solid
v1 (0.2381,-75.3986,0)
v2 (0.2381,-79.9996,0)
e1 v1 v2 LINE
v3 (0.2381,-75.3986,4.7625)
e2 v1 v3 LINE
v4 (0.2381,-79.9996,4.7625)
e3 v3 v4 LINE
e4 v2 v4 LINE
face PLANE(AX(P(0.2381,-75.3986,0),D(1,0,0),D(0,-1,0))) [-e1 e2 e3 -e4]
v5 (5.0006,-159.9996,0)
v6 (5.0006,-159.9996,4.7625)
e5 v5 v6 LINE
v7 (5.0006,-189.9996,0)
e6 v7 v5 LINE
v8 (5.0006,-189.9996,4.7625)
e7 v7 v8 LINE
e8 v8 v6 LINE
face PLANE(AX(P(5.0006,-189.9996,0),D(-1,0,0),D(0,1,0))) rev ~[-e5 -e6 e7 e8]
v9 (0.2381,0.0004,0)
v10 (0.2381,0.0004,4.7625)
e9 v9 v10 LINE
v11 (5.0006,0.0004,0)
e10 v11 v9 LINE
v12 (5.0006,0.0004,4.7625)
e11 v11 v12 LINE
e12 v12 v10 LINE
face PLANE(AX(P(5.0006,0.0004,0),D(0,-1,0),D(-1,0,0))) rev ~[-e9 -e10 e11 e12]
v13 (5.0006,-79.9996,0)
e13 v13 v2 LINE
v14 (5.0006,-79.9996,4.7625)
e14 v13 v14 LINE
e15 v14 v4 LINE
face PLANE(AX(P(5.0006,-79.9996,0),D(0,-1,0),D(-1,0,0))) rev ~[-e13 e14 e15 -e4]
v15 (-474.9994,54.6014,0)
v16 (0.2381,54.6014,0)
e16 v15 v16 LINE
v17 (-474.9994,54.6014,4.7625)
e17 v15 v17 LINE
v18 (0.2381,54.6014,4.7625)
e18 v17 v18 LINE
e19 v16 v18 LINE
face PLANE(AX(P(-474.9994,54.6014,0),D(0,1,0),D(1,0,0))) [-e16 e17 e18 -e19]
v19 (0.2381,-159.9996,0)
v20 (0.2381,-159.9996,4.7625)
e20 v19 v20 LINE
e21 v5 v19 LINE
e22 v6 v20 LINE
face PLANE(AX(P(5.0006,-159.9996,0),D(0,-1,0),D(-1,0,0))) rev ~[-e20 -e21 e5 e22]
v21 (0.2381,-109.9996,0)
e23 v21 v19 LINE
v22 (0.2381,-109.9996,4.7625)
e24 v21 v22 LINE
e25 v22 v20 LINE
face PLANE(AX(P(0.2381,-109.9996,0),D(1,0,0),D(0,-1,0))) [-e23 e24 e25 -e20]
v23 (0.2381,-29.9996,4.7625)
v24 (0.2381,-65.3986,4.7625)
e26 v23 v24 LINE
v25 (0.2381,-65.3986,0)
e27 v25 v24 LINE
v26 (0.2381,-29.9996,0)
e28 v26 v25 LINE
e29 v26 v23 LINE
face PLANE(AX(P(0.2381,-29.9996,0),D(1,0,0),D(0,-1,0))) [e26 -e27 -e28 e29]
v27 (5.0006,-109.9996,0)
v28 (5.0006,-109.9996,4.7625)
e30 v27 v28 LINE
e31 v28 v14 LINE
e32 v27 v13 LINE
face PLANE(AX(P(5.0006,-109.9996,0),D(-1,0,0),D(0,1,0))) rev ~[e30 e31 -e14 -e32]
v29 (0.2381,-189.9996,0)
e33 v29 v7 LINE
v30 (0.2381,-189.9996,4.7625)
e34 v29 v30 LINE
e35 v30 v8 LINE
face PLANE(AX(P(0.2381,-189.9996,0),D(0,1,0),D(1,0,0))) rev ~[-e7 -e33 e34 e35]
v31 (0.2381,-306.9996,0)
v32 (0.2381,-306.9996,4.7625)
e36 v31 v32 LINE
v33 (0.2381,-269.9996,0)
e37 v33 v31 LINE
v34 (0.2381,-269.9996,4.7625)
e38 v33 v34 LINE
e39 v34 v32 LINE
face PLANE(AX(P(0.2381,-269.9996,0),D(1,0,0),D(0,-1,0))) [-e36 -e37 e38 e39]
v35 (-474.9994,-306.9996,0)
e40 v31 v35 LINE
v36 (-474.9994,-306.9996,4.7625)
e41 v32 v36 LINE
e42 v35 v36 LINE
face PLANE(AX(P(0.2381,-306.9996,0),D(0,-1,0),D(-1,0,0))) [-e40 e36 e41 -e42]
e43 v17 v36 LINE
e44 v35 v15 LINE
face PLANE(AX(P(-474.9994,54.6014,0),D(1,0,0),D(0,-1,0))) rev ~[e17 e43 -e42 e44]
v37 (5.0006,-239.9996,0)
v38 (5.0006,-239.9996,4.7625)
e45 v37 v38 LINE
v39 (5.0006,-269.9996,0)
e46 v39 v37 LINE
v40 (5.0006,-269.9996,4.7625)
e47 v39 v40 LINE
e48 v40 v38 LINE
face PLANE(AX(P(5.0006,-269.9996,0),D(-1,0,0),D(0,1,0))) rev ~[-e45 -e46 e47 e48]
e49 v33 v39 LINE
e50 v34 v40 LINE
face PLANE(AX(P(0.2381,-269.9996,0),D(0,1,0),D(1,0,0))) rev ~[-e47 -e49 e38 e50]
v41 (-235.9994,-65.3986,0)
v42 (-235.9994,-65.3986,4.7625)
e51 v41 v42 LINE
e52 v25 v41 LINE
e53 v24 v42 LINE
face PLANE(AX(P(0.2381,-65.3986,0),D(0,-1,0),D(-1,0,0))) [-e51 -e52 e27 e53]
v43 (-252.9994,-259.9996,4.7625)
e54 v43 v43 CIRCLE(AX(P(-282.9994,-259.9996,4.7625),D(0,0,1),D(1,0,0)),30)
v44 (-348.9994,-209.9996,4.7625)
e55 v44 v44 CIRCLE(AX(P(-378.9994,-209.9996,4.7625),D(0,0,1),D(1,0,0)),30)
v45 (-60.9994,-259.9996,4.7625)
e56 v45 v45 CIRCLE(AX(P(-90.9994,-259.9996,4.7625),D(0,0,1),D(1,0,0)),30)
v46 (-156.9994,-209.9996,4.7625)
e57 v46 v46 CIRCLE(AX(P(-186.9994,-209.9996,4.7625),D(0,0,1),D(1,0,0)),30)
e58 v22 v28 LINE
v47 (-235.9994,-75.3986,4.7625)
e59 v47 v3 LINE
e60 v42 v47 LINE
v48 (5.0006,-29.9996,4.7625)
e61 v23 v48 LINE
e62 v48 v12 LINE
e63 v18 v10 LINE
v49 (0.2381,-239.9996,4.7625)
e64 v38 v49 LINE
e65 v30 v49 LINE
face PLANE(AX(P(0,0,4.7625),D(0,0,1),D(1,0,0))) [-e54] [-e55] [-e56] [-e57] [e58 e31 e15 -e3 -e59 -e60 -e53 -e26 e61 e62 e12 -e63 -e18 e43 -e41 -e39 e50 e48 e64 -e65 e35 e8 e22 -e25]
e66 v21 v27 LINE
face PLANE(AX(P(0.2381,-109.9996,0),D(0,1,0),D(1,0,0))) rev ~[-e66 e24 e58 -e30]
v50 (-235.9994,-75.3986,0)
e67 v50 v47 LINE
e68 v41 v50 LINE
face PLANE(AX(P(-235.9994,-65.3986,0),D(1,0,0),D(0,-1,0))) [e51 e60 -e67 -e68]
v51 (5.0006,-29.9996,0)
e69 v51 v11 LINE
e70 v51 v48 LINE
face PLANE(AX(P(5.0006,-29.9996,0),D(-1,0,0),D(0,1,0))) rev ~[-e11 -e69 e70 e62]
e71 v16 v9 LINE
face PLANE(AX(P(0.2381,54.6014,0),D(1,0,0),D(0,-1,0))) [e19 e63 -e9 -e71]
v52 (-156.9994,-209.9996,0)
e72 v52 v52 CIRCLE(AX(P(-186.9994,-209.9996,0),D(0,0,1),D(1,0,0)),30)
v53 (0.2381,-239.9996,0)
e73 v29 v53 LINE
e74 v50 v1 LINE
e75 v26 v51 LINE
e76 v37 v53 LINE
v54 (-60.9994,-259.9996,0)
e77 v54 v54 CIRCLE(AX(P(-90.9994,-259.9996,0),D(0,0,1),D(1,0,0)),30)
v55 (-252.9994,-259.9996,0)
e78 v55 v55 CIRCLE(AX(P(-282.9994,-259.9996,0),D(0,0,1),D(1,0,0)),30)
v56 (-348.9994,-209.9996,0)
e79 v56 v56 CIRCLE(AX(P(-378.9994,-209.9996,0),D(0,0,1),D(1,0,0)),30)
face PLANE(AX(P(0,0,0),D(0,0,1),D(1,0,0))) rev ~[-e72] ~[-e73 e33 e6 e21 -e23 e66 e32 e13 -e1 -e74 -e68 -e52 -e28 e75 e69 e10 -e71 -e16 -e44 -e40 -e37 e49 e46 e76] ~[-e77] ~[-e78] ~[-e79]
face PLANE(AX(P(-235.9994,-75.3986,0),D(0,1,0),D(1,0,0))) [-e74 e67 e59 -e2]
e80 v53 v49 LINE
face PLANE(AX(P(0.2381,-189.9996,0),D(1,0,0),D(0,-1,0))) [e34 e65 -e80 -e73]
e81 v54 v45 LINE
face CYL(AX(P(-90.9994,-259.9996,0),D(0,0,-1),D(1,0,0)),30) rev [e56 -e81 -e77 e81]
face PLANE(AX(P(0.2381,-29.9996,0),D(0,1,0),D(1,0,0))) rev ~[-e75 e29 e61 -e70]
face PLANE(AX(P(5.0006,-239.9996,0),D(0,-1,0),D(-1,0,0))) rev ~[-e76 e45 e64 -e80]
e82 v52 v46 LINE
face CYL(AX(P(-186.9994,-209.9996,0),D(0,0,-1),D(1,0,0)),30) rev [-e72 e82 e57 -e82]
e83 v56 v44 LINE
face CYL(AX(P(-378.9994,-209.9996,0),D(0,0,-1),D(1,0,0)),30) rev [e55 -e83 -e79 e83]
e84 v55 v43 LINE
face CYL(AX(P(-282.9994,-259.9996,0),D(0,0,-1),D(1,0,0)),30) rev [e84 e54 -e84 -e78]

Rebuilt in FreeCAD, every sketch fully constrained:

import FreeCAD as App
import Part
import Sketcher
Q = App.Units.Quantity


def add_polygon(sketch, points):
    """Adds a closed chain of lines whose ends are joined by coincident constraints."""
    first, n = sketch.GeometryCount, len(points)
    for a, b in zip(points, points[1:] + points[:1]):
        sketch.addGeometry(Part.LineSegment(App.Vector(*a, 0), App.Vector(*b, 0)), False)
    for i in range(n):
        sketch.addConstraint(Sketcher.Constraint("Coincident", first + i, 2, first + (i + 1) % n, 1))

doc = App.newDocument("Part")
params = doc.addObject("Spreadsheet::Sheet", "Params")
for row, (alias, value) in enumerate([
    ("sketch1_width", "0.1875 in"),
    ("pad1_length", "0.1875 in"),
], start=1):
    params.set(f"A{row}", alias)
    params.set(f"B{row}", "=" + value)
    params.setAlias(f"B{row}", alias)

body = doc.addObject("PartDesign::Body", "Body")

# Sketch on XY plane
sketch1 = body.newObject("Sketcher::SketchObject", "Sketch")
sketch1.AttachmentSupport = (doc.getObject("XY_Plane"), [""])
sketch1.MapMode = "FlatFace"
add_polygon(sketch1, [(0.2381, 0.0004), (0.2381, 54.6014), (-474.9994, 54.6014), (-474.9994, -306.9996), (0.2381, -306.9996), (0.2381, -269.9996), (5.0006, -269.9996), (5.0006, -239.9996), (0.2381, -239.9996), (0.2381, -189.9996), (5.0006, -189.9996), (5.0006, -159.9996), (0.2381, -159.9996), (0.2381, -109.9996), (5.0006, -109.9996), (5.0006, -79.9996), (0.2381, -79.9996), (0.2381, -75.3986), (-235.9994, -75.3986), (-235.9994, -65.3986), (0.2381, -65.3986), (0.2381, -29.9996), (5.0006, -29.9996), (5.0006, 0.0004)])  # lines 0-23
sketch1.addGeometry(Part.Circle(App.Vector(-186.9994, -209.9996, 0), App.Vector(0, 0, 1), 30), False)  # 24
sketch1.addGeometry(Part.Circle(App.Vector(-282.9994, -259.9996, 0), App.Vector(0, 0, 1), 30), False)  # 25
sketch1.addGeometry(Part.Circle(App.Vector(-378.9994, -209.9996, 0), App.Vector(0, 0, 1), 30), False)  # 26
sketch1.addGeometry(Part.Circle(App.Vector(-90.9994, -259.9996, 0), App.Vector(0, 0, 1), 30), False)  # 27
sketch1.addConstraint(Sketcher.Constraint("Vertical", 0))
sketch1.addConstraint(Sketcher.Constraint("Horizontal", 1))
sketch1.addConstraint(Sketcher.Constraint("Vertical", 2))
sketch1.addConstraint(Sketcher.Constraint("Horizontal", 3))
sketch1.addConstraint(Sketcher.Constraint("Vertical", 4))
sketch1.addConstraint(Sketcher.Constraint("Horizontal", 5))
sketch1.addConstraint(Sketcher.Constraint("Vertical", 6))
sketch1.addConstraint(Sketcher.Constraint("Horizontal", 7))
sketch1.addConstraint(Sketcher.Constraint("Vertical", 8))
sketch1.addConstraint(Sketcher.Constraint("Horizontal", 9))
sketch1.addConstraint(Sketcher.Constraint("Vertical", 10))
sketch1.addConstraint(Sketcher.Constraint("Horizontal", 11))
sketch1.addConstraint(Sketcher.Constraint("Vertical", 12))
sketch1.addConstraint(Sketcher.Constraint("Horizontal", 13))
sketch1.addConstraint(Sketcher.Constraint("Vertical", 14))
sketch1.addConstraint(Sketcher.Constraint("Horizontal", 15))
sketch1.addConstraint(Sketcher.Constraint("Vertical", 16))
sketch1.addConstraint(Sketcher.Constraint("Horizontal", 17))
sketch1.addConstraint(Sketcher.Constraint("Vertical", 18))
sketch1.addConstraint(Sketcher.Constraint("Horizontal", 19))
sketch1.addConstraint(Sketcher.Constraint("Vertical", 20))
sketch1.addConstraint(Sketcher.Constraint("Horizontal", 21))
sketch1.addConstraint(Sketcher.Constraint("Vertical", 22))
sketch1.addConstraint(Sketcher.Constraint("Horizontal", 23))
sketch1.addConstraint(Sketcher.Constraint("Equal", 24, 25))
sketch1.addConstraint(Sketcher.Constraint("Equal", 25, 26))
sketch1.addConstraint(Sketcher.Constraint("Equal", 26, 27))
sketch1.addConstraint(Sketcher.Constraint("Horizontal", 24, 3, 26, 3))
sketch1.addConstraint(Sketcher.Constraint("Horizontal", 25, 3, 27, 3))
sketch1.addConstraint(Sketcher.Constraint("Vertical", 0, 2, 3, 2))
sketch1.addConstraint(Sketcher.Constraint("Vertical", 4, 2, 7, 2))
sketch1.addConstraint(Sketcher.Constraint("Vertical", 6, 2, 9, 2))
sketch1.addConstraint(Sketcher.Constraint("Vertical", 8, 2, 11, 2))
sketch1.addConstraint(Sketcher.Constraint("Vertical", 10, 2, 13, 2))
sketch1.addConstraint(Sketcher.Constraint("Vertical", 12, 2, 15, 2))
sketch1.addConstraint(Sketcher.Constraint("Vertical", 16, 2, 19, 2))
sketch1.addConstraint(Sketcher.Constraint("Vertical", 14, 2, 21, 2))
sketch1.addConstraint(Sketcher.Constraint("Equal", 6, 10))
sketch1.addConstraint(Sketcher.Constraint("Equal", 8, 12))
sketch1.addConstraint(Sketcher.Constraint("Equal", 10, 14))
sketch1.addConstraint(Sketcher.Constraint("Equal", 14, 22))
sketch1.addConstraint(Sketcher.Constraint("Diameter", 24, Q("2.3622 in")))
sketch1.addConstraint(Sketcher.Constraint("DistanceX", 5, 1, 5, 2, Q("0.1875 in")))
sketch1.addConstraint(Sketcher.Constraint("DistanceY", 6, 1, 6, 2, Q("1.1811 in")))
sketch1.addConstraint(Sketcher.Constraint("DistanceY", 8, 1, 8, 2, Q("1.9685 in")))
sketch1.addConstraint(Sketcher.Constraint("DistanceY", 18, 1, 18, 2, Q("0.3937 in")))
sketch1.addConstraint(Sketcher.Constraint("DistanceY", 25, 3, 24, 3, Q("1.9685 in")))
sketch1.addConstraint(Sketcher.Constraint("DistanceY", 4, 2, 27, 3, Q("0.3937 in")))
sketch1.addConstraint(Sketcher.Constraint("DistanceY", 15, 2, 20, 2, Q("1.9685 in")))
sketch1.addConstraint(Sketcher.Constraint("DistanceY", 20, 2, -1, 1, Q("29.9996 mm")))
sketch1.addConstraint(Sketcher.Constraint("DistanceX", 25, 3, 24, 3, Q("96 mm")))
sketch1.addConstraint(Sketcher.Constraint("DistanceX", 26, 3, 25, 3, Q("96 mm")))
sketch1.addConstraint(Sketcher.Constraint("DistanceX", 24, 3, 27, 3, Q("96 mm")))
sketch1.addConstraint(Sketcher.Constraint("DistanceX", 1, 2, 26, 3, Q("96 mm")))
sketch1.addConstraint(Sketcher.Constraint("DistanceX", 27, 3, 5, 2, Q("96 mm")))
sketch1.addConstraint(Sketcher.Constraint("DistanceX", 17, 2, 17, 1, Q("9.3007 in")))
sketch1.addConstraint(Sketcher.Constraint("DistanceY", 4, 1, 4, 2, Q("1.4567 in")))
sketch1.addConstraint(Sketcher.Constraint("DistanceY", 0, 1, 0, 2, Q("54.601 mm")))
sketch1.addConstraint(Sketcher.Constraint("DistanceY", 16, 1, 16, 2, Q("4.601 mm")))
sketch1.addConstraint(Sketcher.Constraint("DistanceX", 25, 3, -1, 1, Q("11.1417 in")))
sketch1.setExpression("Constraints[66]", "Params.sketch1_width")
pad1 = body.newObject("PartDesign::Pad", "Pad")
pad1.Profile = sketch1
pad1.setExpression("Length", "Params.pad1_length")

doc.recompute()
